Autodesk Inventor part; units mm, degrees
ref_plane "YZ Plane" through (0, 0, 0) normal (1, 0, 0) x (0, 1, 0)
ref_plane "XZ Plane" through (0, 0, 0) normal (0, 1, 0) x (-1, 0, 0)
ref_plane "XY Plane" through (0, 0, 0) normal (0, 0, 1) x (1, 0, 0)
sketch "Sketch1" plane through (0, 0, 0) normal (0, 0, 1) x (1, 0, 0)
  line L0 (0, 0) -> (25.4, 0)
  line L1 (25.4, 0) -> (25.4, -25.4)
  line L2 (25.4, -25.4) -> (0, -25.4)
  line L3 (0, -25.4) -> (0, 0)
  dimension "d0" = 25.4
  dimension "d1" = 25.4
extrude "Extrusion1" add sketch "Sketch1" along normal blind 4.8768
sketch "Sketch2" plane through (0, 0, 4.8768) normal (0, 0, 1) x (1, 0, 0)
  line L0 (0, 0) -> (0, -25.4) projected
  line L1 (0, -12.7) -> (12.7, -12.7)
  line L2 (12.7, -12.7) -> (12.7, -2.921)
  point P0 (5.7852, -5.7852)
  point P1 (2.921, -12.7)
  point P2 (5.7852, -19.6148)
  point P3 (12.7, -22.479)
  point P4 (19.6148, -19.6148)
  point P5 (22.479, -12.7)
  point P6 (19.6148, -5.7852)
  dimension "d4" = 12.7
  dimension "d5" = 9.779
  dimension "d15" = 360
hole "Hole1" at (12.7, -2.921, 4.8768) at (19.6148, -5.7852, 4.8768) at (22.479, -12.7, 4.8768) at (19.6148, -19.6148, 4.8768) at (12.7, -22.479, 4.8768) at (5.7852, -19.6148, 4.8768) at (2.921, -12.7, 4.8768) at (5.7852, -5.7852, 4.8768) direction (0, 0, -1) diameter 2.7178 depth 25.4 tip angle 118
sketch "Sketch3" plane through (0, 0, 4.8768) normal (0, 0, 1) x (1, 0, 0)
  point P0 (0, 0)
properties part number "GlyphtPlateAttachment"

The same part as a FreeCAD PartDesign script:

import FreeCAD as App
import Part
import Sketcher
from FreeCAD import Vector
Q = App.Units.Quantity

doc = App.newDocument("Part")
params = doc.addObject("Spreadsheet::Sheet", "Params")
for row, (alias, value) in enumerate([
    ("sketch1_width", "1 in"),
    ("pad1_length", "0.192 in"),
    ("sketch2_diameter", "0.107 in"),
    ("hole_diameter", "0.107 in"),
    ("hole_depth", "1 in"),
], start=1):
    params.set(f"A{row}", alias)
    params.set(f"B{row}", "=" + value)
    params.setAlias(f"B{row}", alias)

body = doc.addObject("PartDesign::Body", "Body")

# Sketch on XY plane
sketch1 = body.newObject("Sketcher::SketchObject", "Sketch")
sketch1.AttachmentSupport = (doc.getObject("XY_Plane"), [""])
sketch1.MapMode = "FlatFace"
sketch1.addGeometry([
    Part.LineSegment(Vector(25, 0, 0), Vector(0, 0, 0)),
    Part.LineSegment(Vector(0, 0, 0), Vector(0, -25, 0)),
    Part.LineSegment(Vector(0, -25, 0), Vector(25, -25, 0)),
    Part.LineSegment(Vector(25, -25, 0), Vector(25, 0, 0)),
], False)
sketch1.addConstraint([
    Sketcher.Constraint("Coincident", 0, 2, 1, 1),
    Sketcher.Constraint("Coincident", 1, 2, 2, 1),
    Sketcher.Constraint("Coincident", 2, 2, 3, 1),
    Sketcher.Constraint("Coincident", 3, 2, 0, 1),
    Sketcher.Constraint("Horizontal", 0),
    Sketcher.Constraint("Vertical", 1),
    Sketcher.Constraint("Horizontal", 2),
    Sketcher.Constraint("Vertical", 3),
    Sketcher.Constraint("Coincident", 0, 2, -1, 1),
    Sketcher.Constraint("Equal", 2, 1),
    Sketcher.Constraint("DistanceX", 0, 2, 0, 1, Q("1 in")),
])
sketch1.setExpression("Constraints[10]", "Params.sketch1_width")
pad1 = body.newObject("PartDesign::Pad", "Pad")
pad1.Profile = sketch1
pad1.setExpression("Length", "Params.pad1_length")

# Sketch on XY plane
sketch2 = body.newObject("Sketcher::SketchObject", "Sketch001")
sketch2.AttachmentSupport = (doc.getObject("XY_Plane"), [""])
sketch2.MapMode = "FlatFace"
sketch2.AttachmentOffset = App.Placement(Vector(0, 0, 0.192 * 25.4), App.Rotation())
sketch2.addGeometry([
    Part.Circle(Vector(12.7, -2.9, 0), Vector(0, 0, 1), 1.4),  # 0
    Part.Circle(Vector(19.6, -5.8, 0), Vector(0, 0, 1), 1.4),  # 1
    Part.Circle(Vector(22.5, -12.7, 0), Vector(0, 0, 1), 1.4),  # 2
    Part.Circle(Vector(19.6, -19.6, 0), Vector(0, 0, 1), 1.4),  # 3
    Part.Circle(Vector(12.7, -22.5, 0), Vector(0, 0, 1), 1.4),  # 4
    Part.Circle(Vector(5.8, -19.6, 0), Vector(0, 0, 1), 1.4),  # 5
    Part.Circle(Vector(2.9, -12.7, 0), Vector(0, 0, 1), 1.4),  # 6
    Part.Circle(Vector(5.8, -5.8, 0), Vector(0, 0, 1), 1.4),  # 7
], False)
sketch2.addConstraint([
    Sketcher.Constraint("Equal", 0, 1),
    Sketcher.Constraint("Equal", 1, 2),
    Sketcher.Constraint("Equal", 2, 3),
    Sketcher.Constraint("Equal", 3, 4),
    Sketcher.Constraint("Equal", 4, 5),
    Sketcher.Constraint("Equal", 5, 6),
    Sketcher.Constraint("Equal", 6, 7),
    Sketcher.Constraint("Horizontal", 3, 3, 5, 3),
    Sketcher.Constraint("Horizontal", 2, 3, 6, 3),
    Sketcher.Constraint("Horizontal", 1, 3, 7, 3),
    Sketcher.Constraint("Vertical", 1, 3, 3, 3),
    Sketcher.Constraint("Vertical", 0, 3, 4, 3),
    Sketcher.Constraint("Vertical", 5, 3, 7, 3),
    Sketcher.Constraint("Diameter", 0, Q("0.107 in")),
    Sketcher.Constraint("DistanceX", -1, 1, 0, 3, Q("0.5 in")),
    Sketcher.Constraint("DistanceY", 2, 3, -1, 1, Q("0.5 in")),
    Sketcher.Constraint("DistanceY", 4, 3, 0, 3, Q("0.77 in")),
    Sketcher.Constraint("DistanceY", 0, 3, -1, 1, Q("0.115 in")),
    Sketcher.Constraint("DistanceX", -1, 1, 2, 3, Q("0.885 in")),
    Sketcher.Constraint("DistanceX", -1, 1, 6, 3, Q("0.115 in")),
    Sketcher.Constraint("DistanceX", -1, 1, 1, 3, Q("19.6148 mm")),
    Sketcher.Constraint("DistanceY", 1, 3, -1, 1, Q("5.7852 mm")),
    Sketcher.Constraint("DistanceY", 3, 3, -1, 1, Q("19.6148 mm")),
    Sketcher.Constraint("DistanceX", -1, 1, 5, 3, Q("5.7852 mm")),
])
sketch2.setExpression("Constraints[13]", "Params.sketch2_diameter")
doc.recompute()
hole = body.newObject("PartDesign::Hole", "Hole")
hole.Profile = sketch2
hole.ThreadType = "None"
hole.setExpression("Diameter", "Params.hole_diameter")
hole.DepthType = "Dimension"
hole.setExpression("Depth", "Params.hole_depth")
hole.DrillPoint = "Angled"
hole.DrillPointAngle = 118

doc.recompute()
